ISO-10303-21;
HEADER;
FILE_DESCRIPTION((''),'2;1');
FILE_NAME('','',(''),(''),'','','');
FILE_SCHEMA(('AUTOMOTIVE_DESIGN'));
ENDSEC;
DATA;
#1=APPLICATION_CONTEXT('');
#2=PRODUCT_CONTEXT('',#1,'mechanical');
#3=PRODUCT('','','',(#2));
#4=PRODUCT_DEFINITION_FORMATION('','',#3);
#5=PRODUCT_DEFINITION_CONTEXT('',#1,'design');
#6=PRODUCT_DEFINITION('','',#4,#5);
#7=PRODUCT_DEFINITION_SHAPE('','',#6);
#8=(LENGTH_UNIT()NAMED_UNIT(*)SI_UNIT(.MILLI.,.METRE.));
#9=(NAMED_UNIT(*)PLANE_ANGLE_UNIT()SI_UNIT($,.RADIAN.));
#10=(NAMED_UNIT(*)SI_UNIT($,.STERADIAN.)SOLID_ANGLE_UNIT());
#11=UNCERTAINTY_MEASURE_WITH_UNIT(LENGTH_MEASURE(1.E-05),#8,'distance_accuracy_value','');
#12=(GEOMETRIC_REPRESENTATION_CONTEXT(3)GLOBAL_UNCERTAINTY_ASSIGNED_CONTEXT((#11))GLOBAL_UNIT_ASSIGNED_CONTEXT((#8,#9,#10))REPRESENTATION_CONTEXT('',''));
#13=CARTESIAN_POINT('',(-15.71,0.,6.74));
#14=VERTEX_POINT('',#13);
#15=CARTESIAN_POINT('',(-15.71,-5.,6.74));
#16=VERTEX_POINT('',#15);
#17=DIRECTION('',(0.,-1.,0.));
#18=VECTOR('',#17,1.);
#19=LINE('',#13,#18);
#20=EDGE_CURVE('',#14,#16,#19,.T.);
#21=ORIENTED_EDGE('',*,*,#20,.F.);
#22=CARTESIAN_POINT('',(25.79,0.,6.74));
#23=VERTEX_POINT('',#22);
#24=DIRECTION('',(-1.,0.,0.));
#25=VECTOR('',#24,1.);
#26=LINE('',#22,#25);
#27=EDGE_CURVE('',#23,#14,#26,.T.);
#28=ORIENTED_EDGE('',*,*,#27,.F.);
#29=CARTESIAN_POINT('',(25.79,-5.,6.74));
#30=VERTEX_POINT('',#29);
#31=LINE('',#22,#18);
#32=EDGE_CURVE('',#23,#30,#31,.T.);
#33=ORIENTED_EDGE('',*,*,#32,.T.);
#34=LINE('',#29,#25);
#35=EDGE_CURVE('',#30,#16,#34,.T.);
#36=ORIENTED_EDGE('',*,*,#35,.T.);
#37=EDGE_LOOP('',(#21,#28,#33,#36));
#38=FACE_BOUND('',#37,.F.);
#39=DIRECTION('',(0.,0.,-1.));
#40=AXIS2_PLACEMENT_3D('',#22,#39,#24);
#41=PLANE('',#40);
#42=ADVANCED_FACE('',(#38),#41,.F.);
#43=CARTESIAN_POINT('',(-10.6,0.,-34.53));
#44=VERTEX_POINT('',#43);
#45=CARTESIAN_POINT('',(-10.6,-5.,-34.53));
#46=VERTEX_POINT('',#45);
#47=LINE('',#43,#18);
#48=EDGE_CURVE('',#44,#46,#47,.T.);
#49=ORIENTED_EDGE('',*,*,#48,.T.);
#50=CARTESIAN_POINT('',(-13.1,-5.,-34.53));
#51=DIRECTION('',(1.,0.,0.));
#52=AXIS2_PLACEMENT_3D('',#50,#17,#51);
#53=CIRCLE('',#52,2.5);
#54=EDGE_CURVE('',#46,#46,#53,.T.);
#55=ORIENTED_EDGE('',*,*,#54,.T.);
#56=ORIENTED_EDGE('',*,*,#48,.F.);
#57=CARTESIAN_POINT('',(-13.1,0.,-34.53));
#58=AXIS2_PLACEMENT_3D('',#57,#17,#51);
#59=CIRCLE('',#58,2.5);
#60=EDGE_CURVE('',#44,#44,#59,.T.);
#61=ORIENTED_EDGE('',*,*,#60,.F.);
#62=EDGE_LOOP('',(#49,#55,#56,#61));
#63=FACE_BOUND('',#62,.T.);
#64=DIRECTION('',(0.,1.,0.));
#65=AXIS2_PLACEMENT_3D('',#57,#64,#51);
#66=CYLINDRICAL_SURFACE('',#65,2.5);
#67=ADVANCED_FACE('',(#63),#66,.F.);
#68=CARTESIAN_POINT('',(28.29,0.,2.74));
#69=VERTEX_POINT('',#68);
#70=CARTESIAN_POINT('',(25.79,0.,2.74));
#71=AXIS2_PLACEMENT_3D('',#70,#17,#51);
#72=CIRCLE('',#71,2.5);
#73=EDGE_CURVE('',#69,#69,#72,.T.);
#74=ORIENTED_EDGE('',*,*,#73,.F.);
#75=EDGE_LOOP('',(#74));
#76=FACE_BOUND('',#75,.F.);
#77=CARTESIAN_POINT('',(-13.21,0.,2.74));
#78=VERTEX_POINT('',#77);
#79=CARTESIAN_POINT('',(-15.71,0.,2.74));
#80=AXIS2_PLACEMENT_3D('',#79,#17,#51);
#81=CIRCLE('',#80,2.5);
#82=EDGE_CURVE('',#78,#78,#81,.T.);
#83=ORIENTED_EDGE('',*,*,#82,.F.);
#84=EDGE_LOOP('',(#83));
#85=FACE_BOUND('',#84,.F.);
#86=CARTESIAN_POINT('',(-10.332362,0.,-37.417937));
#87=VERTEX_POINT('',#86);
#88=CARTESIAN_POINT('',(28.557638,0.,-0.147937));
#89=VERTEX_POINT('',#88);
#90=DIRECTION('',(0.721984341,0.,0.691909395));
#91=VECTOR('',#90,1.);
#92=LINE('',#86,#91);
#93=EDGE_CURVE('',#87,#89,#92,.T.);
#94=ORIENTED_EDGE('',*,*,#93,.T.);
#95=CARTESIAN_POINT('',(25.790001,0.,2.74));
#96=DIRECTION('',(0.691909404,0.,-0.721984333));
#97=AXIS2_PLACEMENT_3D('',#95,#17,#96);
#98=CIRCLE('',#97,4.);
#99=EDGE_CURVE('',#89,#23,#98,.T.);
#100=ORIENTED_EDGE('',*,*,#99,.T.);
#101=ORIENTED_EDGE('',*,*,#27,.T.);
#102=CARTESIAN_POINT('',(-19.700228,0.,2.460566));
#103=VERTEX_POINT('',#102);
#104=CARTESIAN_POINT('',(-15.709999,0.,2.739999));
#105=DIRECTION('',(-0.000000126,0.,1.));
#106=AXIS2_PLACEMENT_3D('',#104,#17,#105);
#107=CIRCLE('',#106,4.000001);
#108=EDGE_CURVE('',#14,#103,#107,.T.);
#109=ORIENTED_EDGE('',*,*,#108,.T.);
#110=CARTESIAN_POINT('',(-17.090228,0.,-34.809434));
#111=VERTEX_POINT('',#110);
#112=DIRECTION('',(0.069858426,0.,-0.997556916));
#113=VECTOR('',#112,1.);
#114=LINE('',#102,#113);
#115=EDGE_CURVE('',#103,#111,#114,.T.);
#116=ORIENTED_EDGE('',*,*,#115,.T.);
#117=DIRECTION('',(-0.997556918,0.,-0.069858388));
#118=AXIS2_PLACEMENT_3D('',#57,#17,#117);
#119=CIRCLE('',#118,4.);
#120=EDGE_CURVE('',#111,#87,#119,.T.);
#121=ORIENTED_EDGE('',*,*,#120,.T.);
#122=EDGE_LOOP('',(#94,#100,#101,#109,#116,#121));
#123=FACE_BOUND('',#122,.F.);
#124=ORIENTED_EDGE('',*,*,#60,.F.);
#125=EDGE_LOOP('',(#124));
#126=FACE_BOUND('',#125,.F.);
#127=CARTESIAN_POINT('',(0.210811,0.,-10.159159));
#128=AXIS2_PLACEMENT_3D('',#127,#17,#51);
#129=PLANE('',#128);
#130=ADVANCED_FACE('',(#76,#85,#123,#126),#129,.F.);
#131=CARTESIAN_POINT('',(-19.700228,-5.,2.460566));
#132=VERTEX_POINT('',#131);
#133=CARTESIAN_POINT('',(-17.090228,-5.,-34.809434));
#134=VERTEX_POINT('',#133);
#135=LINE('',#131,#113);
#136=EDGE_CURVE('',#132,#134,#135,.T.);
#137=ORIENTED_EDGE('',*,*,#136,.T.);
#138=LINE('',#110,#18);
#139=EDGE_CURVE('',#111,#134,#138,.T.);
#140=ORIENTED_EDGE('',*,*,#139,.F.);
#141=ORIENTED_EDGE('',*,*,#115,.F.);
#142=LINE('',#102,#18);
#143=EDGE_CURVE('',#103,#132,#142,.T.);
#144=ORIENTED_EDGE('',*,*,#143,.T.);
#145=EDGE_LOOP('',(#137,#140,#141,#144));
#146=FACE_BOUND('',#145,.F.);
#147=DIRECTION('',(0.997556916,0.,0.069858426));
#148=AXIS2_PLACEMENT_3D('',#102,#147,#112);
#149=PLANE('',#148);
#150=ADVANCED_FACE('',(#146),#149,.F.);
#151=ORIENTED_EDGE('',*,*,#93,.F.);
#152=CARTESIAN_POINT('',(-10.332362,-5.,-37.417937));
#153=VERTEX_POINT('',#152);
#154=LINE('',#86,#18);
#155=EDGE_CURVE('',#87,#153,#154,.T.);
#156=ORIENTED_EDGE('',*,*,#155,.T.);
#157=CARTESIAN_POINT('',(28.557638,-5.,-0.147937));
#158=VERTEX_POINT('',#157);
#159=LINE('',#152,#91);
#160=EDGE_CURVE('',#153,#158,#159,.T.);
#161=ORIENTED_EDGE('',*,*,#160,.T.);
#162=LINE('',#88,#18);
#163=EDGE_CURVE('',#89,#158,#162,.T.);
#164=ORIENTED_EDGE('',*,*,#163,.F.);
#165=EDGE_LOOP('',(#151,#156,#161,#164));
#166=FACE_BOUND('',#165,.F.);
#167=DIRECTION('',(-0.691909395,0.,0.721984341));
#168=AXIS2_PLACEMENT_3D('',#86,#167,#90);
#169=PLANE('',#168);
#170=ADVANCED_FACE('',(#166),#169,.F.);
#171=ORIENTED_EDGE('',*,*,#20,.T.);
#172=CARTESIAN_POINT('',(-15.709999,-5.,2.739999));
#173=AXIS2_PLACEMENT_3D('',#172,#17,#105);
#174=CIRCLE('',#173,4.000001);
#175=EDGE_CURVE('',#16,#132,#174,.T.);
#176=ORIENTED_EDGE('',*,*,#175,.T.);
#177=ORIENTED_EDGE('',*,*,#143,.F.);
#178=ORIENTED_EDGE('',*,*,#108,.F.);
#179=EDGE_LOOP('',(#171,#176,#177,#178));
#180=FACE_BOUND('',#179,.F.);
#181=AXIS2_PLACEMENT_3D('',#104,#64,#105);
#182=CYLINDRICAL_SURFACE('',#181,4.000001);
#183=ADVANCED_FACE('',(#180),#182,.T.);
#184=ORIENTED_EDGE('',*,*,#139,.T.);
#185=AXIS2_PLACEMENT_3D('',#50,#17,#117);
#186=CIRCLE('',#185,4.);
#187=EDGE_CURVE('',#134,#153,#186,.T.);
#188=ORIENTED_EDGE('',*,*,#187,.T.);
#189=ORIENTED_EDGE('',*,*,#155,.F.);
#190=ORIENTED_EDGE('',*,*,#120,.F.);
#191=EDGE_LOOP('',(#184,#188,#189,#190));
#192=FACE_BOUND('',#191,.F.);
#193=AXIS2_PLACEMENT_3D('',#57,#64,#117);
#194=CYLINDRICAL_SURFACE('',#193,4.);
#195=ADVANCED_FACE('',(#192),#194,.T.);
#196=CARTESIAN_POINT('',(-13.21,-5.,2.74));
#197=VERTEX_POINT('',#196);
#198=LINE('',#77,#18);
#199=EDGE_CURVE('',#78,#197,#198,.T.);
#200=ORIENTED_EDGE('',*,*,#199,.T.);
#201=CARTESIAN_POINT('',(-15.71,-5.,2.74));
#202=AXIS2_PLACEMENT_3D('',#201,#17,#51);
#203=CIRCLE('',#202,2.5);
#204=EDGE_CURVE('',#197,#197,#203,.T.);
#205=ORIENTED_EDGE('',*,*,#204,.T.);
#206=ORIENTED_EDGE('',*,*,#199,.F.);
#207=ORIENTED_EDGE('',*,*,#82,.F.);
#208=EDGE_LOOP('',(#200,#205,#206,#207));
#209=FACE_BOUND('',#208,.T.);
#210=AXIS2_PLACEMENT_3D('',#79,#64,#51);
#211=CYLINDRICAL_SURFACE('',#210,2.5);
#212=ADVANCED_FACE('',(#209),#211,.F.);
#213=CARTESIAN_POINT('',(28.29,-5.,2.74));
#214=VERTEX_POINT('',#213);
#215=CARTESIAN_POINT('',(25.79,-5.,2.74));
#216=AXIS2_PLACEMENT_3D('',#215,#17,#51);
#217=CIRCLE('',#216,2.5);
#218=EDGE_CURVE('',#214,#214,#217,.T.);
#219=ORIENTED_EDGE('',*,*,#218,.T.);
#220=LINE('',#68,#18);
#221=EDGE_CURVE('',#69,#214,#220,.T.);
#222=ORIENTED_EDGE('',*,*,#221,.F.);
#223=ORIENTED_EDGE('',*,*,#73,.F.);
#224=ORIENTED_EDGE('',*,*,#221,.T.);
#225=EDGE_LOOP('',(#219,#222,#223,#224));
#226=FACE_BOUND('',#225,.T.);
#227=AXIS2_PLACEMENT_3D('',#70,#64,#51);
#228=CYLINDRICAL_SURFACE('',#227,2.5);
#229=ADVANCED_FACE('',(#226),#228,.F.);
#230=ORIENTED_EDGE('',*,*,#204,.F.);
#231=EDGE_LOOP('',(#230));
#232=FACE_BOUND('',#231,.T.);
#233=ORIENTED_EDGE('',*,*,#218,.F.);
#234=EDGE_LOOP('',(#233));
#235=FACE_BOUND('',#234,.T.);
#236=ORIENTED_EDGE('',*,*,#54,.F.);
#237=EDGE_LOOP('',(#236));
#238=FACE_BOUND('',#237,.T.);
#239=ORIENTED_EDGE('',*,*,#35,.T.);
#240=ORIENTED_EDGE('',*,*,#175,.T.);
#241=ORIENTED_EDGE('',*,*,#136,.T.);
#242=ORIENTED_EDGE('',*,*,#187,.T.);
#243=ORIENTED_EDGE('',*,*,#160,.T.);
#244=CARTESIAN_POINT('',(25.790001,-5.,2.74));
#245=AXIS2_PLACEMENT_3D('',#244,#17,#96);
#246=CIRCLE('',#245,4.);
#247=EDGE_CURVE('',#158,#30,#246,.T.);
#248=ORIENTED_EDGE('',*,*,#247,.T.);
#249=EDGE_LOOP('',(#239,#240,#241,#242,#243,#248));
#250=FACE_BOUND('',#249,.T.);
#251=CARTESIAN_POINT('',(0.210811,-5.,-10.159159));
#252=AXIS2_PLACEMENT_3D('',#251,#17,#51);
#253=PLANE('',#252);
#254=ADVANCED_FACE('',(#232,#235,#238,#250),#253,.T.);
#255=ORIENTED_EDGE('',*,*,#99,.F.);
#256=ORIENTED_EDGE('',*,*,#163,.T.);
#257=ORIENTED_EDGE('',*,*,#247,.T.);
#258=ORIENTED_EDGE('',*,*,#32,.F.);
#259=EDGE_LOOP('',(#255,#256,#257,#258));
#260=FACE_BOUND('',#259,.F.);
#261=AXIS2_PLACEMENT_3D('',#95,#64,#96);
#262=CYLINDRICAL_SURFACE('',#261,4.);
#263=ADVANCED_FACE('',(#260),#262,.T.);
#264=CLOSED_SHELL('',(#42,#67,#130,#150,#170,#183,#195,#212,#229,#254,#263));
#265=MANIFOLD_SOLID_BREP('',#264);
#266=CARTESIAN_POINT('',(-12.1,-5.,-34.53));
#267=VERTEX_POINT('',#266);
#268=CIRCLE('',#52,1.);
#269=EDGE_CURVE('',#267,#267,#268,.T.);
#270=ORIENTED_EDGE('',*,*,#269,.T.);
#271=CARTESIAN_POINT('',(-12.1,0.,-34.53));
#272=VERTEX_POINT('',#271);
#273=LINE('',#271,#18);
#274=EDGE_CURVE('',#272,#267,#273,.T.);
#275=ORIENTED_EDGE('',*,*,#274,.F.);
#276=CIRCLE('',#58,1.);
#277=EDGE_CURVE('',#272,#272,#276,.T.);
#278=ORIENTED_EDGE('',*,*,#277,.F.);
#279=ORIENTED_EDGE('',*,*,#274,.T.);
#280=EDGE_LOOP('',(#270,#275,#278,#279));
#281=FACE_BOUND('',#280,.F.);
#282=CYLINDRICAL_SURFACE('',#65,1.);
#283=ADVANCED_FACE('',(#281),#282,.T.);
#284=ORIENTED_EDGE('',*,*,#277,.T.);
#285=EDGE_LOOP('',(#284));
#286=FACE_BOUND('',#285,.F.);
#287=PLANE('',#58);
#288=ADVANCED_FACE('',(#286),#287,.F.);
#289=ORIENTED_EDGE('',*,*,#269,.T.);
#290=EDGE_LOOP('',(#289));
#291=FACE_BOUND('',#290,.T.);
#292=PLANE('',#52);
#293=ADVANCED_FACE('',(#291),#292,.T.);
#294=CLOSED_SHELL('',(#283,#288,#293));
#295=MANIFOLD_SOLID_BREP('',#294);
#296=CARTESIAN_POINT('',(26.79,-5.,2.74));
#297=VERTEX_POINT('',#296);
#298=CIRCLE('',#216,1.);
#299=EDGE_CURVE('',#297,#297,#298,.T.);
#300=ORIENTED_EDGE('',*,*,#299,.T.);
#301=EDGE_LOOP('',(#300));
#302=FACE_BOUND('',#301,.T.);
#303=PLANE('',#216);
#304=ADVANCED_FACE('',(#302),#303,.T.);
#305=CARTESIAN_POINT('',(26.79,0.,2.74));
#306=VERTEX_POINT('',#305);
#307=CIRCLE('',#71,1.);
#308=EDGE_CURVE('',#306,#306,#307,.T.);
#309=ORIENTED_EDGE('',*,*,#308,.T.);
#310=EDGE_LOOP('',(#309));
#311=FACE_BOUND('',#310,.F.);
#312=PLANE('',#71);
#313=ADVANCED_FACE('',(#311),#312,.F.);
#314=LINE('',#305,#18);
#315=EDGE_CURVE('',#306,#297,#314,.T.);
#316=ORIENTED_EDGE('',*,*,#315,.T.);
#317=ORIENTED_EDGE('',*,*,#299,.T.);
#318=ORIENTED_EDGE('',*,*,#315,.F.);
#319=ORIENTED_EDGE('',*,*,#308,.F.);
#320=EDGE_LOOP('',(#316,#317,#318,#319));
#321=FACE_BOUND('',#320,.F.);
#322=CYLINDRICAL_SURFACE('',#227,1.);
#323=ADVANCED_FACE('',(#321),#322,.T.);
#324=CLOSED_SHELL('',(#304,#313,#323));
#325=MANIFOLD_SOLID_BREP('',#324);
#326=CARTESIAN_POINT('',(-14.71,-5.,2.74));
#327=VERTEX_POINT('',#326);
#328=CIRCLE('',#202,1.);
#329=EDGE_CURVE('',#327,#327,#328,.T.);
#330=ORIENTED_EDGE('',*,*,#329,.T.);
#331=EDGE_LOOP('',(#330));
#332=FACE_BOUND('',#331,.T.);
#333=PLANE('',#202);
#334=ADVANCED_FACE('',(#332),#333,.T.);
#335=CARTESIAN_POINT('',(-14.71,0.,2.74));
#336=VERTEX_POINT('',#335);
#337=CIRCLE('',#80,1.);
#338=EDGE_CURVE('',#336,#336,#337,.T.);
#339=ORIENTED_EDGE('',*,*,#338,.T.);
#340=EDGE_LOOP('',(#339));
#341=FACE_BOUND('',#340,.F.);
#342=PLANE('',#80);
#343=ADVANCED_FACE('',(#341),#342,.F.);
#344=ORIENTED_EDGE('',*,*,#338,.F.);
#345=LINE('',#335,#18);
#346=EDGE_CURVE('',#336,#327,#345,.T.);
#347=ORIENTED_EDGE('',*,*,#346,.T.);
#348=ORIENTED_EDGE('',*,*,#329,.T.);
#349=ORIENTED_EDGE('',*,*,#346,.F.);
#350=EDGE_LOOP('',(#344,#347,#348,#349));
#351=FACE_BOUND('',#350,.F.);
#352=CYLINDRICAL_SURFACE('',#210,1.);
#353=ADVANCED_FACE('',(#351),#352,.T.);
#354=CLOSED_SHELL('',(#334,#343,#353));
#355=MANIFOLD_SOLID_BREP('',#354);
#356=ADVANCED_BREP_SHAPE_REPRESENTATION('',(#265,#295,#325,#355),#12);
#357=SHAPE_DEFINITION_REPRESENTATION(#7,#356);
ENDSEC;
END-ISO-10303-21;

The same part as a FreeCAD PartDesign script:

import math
import FreeCAD as App
import Part
import Sketcher

doc = App.newDocument("Part")
body = doc.addObject("PartDesign::Body", "Body")
body.AllowCompound = True

# Sketch on XZ plane
sketch1 = doc.addObject("Sketcher::SketchObject", "Sketch")
body.addObject(sketch1)
sketch1.AttachmentSupport = (doc.XZ_Plane, [""])
sketch1.MapMode = "FlatFace"
sketch1.addGeometry([
    Part.LineSegment(App.Vector(25.8, 6.7, 0), App.Vector(-15.7, 6.7, 0)),  # 0
    Part.ArcOfCircle(Part.Circle(App.Vector(-15.7, 2.7, 0), App.Vector(0, 0, 1), 4), math.radians(90), math.radians(184)),  # 1
    Part.LineSegment(App.Vector(-19.7, 2.5, 0), App.Vector(-17.1, -34.8, 0)),  # 2
    Part.ArcOfCircle(Part.Circle(App.Vector(-13.1, -34.5, 0), App.Vector(0, 0, 1), 4), math.radians(-176), math.radians(-46)),  # 3
    Part.LineSegment(App.Vector(-10.3, -37.4, 0), App.Vector(28.6, -0.1, 0)),  # 4
    Part.ArcOfCircle(Part.Circle(App.Vector(25.8, 2.7, 0), App.Vector(0, 0, 1), 4), math.radians(-46), math.radians(90)),  # 5
    Part.Circle(App.Vector(-13.1, -34.5, 0), App.Vector(0, 0, 1), 2.5),  # 6
    Part.Circle(App.Vector(-15.7, 2.7, 0), App.Vector(0, 0, 1), 2.5),  # 7
    Part.Circle(App.Vector(25.8, 2.7, 0), App.Vector(0, 0, 1), 2.5),  # 8
    Part.Circle(App.Vector(-15.7, 2.7, 0), App.Vector(0, 0, 1), 1),  # 9
    Part.Circle(App.Vector(25.8, 2.7, 0), App.Vector(0, 0, 1), 1),  # 10
    Part.Circle(App.Vector(-13.1, -34.5, 0), App.Vector(0, 0, 1), 1),  # 11
], False)
sketch1.addConstraint([
    Sketcher.Constraint("Tangent", 0, 2, 1, 1),
    Sketcher.Constraint("Tangent", 1, 2, 2, 1),
    Sketcher.Constraint("Tangent", 2, 2, 3, 1),
    Sketcher.Constraint("Tangent", 3, 2, 4, 1),
    Sketcher.Constraint("Tangent", 4, 2, 5, 1),
    Sketcher.Constraint("Tangent", 5, 2, 0, 1),
    Sketcher.Constraint("Horizontal", 0),
    Sketcher.Constraint("Coincident", 6, 3, 3, 3),
    Sketcher.Constraint("Coincident", 7, 3, 1, 3),
    Sketcher.Constraint("Coincident", 8, 3, 5, 3),
    Sketcher.Constraint("Coincident", 9, 3, 1, 3),
    Sketcher.Constraint("Coincident", 10, 3, 5, 3),
    Sketcher.Constraint("Coincident", 11, 3, 3, 3),
    Sketcher.Constraint("Equal", 1, 3),
    Sketcher.Constraint("Equal", 3, 5),
    Sketcher.Constraint("Equal", 6, 7),
    Sketcher.Constraint("Equal", 7, 8),
    Sketcher.Constraint("Equal", 9, 10),
    Sketcher.Constraint("Equal", 10, 11),
    Sketcher.Constraint("Diameter", 6, 5.0),
    Sketcher.Constraint("Diameter", 9, 2.0),
    Sketcher.Constraint("Radius", 1, 4.000001),
    Sketcher.Constraint("DistanceX", 0, 2, 0, 1, 41.5),
    Sketcher.Constraint("DistanceX", 3, 3, -1, 1, 13.1),
    Sketcher.Constraint("DistanceX", 1, 3, -1, 1, 15.709999),
    Sketcher.Constraint("DistanceY", -1, 1, 1, 3, 2.739999),
    Sketcher.Constraint("DistanceY", 3, 3, -1, 1, 34.53),
])
pad1 = doc.addObject("PartDesign::Pad", "Pad")
body.addObject(pad1)
pad1.Profile = sketch1
pad1.Length = 5

doc.recompute()
